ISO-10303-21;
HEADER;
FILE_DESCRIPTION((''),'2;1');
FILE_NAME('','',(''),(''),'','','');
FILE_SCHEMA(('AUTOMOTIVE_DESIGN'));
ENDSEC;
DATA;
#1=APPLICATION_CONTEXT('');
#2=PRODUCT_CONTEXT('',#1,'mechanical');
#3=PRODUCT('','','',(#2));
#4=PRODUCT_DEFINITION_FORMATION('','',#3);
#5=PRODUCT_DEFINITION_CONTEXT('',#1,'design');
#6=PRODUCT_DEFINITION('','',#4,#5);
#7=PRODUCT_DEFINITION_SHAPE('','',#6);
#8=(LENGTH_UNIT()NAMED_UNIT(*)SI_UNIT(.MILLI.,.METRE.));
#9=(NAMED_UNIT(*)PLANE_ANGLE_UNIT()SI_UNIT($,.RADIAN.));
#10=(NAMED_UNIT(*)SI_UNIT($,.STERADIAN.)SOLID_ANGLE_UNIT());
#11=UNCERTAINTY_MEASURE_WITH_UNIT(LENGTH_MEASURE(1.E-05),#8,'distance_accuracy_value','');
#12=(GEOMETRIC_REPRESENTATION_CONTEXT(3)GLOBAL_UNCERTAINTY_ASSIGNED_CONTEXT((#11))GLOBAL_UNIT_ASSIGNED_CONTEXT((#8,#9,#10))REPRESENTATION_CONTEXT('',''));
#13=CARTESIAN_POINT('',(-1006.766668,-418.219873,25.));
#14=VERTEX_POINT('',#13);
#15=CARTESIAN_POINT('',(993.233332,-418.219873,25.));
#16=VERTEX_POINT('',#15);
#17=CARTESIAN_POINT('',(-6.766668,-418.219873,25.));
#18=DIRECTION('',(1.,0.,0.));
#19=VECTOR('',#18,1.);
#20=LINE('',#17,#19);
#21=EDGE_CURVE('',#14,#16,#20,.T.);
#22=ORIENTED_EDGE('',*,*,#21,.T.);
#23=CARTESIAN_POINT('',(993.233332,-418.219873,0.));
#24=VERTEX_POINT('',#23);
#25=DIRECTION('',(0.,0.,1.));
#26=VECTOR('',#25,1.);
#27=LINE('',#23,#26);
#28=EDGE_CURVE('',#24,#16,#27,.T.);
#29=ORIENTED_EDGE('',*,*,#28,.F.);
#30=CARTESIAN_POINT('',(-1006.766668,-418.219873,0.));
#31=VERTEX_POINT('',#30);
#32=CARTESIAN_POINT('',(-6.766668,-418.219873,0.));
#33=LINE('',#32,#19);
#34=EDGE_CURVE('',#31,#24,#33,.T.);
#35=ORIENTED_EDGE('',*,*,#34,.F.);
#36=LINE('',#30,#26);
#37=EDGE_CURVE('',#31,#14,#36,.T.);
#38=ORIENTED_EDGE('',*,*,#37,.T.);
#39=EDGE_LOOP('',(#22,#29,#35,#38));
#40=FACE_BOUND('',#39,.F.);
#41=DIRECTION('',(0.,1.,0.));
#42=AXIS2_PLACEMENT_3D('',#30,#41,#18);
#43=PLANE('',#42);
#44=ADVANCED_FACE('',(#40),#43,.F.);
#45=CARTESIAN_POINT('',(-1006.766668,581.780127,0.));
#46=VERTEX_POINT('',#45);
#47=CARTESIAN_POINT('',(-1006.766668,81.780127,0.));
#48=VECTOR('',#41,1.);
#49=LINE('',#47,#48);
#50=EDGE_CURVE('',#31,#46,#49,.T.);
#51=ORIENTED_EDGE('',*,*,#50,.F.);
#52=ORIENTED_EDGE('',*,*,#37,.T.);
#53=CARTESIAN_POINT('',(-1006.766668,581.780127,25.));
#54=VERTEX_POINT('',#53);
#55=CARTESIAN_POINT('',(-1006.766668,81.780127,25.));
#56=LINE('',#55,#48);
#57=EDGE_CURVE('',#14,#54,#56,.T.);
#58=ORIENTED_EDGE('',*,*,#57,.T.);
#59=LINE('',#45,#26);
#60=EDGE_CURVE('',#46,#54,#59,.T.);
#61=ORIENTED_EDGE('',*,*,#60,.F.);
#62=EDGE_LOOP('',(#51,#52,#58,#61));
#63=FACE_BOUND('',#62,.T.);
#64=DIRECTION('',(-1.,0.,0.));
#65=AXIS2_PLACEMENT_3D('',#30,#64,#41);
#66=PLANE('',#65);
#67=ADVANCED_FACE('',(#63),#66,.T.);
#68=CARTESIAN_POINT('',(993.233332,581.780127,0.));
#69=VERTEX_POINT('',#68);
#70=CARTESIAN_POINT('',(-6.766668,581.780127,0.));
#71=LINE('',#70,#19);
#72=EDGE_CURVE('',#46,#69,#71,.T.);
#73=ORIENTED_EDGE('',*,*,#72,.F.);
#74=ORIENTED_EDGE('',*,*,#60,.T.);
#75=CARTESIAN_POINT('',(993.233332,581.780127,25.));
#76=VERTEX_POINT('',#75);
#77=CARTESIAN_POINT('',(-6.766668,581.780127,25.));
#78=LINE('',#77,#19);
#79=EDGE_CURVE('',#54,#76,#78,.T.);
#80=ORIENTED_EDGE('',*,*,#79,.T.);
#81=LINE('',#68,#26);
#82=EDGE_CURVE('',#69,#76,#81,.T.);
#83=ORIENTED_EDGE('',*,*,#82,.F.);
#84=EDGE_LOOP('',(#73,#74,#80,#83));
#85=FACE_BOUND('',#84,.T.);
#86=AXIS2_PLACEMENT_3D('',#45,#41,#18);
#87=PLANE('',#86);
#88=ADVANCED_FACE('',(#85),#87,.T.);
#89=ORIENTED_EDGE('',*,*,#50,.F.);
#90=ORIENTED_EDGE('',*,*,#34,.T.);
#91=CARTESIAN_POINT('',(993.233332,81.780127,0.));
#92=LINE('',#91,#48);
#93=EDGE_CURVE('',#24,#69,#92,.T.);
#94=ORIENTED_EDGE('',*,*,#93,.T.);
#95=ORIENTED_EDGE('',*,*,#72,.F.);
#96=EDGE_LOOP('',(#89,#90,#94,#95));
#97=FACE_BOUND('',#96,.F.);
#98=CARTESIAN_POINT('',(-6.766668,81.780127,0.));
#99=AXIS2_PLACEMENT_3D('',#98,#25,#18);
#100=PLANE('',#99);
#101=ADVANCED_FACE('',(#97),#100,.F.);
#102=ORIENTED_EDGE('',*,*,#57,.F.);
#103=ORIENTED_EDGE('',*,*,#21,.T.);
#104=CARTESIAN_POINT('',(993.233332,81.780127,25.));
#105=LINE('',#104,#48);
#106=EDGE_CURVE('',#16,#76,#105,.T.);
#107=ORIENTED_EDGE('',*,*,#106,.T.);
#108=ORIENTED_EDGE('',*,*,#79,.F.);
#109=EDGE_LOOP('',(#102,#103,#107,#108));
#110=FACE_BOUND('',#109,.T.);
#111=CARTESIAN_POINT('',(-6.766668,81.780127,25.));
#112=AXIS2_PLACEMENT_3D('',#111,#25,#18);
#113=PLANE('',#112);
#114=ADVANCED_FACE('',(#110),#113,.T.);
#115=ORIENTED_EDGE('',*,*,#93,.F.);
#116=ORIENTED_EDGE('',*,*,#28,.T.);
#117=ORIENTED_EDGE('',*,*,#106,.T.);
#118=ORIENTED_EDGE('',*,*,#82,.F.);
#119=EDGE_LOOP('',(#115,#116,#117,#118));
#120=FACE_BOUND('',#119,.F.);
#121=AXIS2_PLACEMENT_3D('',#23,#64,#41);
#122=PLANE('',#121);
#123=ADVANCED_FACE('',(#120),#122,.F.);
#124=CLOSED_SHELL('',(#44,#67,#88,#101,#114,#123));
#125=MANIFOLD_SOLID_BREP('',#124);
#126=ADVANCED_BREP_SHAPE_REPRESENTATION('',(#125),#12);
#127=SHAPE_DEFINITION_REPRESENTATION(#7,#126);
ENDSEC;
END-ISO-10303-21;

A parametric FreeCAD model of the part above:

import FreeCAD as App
import Part
import Sketcher

doc = App.newDocument("Part")
body = doc.addObject("PartDesign::Body", "Body")

# Sketch on XY plane
sketch1 = body.newObject("Sketcher::SketchObject", "Sketch")
sketch1.AttachmentSupport = (doc.getObject("XY_Plane"), [""])
sketch1.MapMode = "FlatFace"
sketch1.addGeometry([
    Part.LineSegment(App.Vector(-1007, 582, 0), App.Vector(-1007, -418, 0)),
    Part.LineSegment(App.Vector(-1007, -418, 0), App.Vector(993, -418, 0)),
    Part.LineSegment(App.Vector(993, -418, 0), App.Vector(993, 582, 0)),
    Part.LineSegment(App.Vector(993, 582, 0), App.Vector(-1007, 582, 0)),
], False)
sketch1.addConstraint([
    Sketcher.Constraint("Coincident", 0, 2, 1, 1),
    Sketcher.Constraint("Coincident", 1, 2, 2, 1),
    Sketcher.Constraint("Coincident", 2, 2, 3, 1),
    Sketcher.Constraint("Coincident", 3, 2, 0, 1),
    Sketcher.Constraint("Vertical", 0),
    Sketcher.Constraint("Horizontal", 1),
    Sketcher.Constraint("Vertical", 2),
    Sketcher.Constraint("Horizontal", 3),
    Sketcher.Constraint("DistanceX", 1, 1, 1, 2, 2000.0),
    Sketcher.Constraint("DistanceY", 0, 2, 0, 1, 1000.0),
    Sketcher.Constraint("DistanceX", 0, 2, -1, 1, 1006.766668),
    Sketcher.Constraint("DistanceY", 0, 2, -1, 1, 418.219873),
])
pad1 = body.newObject("PartDesign::Pad", "Pad")
pad1.Profile = sketch1
pad1.Length = 25

doc.recompute()
